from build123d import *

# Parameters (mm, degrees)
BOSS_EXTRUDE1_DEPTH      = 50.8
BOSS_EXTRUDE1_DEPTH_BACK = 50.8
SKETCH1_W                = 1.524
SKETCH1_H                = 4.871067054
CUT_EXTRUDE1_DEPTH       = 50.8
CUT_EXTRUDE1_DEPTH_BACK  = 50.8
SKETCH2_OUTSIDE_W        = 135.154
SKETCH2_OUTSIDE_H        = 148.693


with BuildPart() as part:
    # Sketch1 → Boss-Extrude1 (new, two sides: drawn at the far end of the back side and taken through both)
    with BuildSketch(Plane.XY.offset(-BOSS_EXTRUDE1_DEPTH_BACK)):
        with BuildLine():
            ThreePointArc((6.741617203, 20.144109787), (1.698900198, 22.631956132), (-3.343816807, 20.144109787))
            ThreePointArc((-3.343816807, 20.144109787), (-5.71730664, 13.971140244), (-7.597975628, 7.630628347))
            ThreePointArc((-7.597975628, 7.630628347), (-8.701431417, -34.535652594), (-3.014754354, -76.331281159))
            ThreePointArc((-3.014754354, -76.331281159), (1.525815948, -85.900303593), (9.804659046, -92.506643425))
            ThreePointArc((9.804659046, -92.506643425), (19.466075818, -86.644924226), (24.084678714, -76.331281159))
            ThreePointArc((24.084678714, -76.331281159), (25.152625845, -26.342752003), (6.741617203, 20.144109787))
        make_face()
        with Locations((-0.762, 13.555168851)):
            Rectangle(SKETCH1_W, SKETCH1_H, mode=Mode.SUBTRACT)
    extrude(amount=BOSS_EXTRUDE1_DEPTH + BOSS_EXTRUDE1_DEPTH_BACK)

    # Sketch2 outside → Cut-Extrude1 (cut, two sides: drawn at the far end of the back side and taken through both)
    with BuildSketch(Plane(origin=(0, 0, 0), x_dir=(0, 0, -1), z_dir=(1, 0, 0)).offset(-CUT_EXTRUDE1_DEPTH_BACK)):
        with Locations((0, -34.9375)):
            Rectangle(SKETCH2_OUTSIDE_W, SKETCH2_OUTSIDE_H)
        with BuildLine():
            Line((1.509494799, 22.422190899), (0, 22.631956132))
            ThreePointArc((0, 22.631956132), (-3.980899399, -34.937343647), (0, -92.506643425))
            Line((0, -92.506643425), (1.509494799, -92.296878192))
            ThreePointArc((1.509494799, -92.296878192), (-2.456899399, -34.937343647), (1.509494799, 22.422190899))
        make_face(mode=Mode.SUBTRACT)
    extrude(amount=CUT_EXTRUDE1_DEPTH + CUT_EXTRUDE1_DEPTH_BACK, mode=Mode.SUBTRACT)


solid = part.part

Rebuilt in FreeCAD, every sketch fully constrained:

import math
import FreeCAD as App
import Part
import Sketcher

V = App.Vector
Q = App.Units.Quantity


def add_polygon(sketch, points):
    """Adds a closed chain of lines whose ends are joined by coincident constraints."""
    first, n = sketch.GeometryCount, len(points)
    for a, b in zip(points, points[1:] + points[:1]):
        sketch.addGeometry(Part.LineSegment(App.Vector(*a, 0), App.Vector(*b, 0)), False)
    for i in range(n):
        sketch.addConstraint(Sketcher.Constraint("Coincident", first + i, 2, first + (i + 1) % n, 1))

doc = App.newDocument("Part")
body = doc.addObject("PartDesign::Body", "Body")

# Sketch on XY plane
sketch1 = doc.addObject("Sketcher::SketchObject", "Sketch")
body.addObject(sketch1)
sketch1.AttachmentSupport = (doc.XY_Plane, [""])
sketch1.MapMode = "FlatFace"
sketch1.addGeometry(Part.ArcOfCircle(Part.Circle(V(1.7, 16.3, 0), V(0, 0, 1), 6.4), math.radians(37), math.radians(143)), False)  # 0
sketch1.addGeometry(Part.ArcOfCircle(Part.Circle(V(73.8, -13.1, 0), V(0, 0, 1), 84), math.radians(156.71), math.radians(165.73)), False)  # 1
sketch1.addGeometry(Part.ArcOfCircle(Part.Circle(V(252.5, -20.3, 0), V(0, 0, 1), 261.6), math.radians(173.88), math.radians(192.37)), False)  # 2
sketch1.addGeometry(Part.ArcOfCircle(Part.Circle(V(20, -71.3, 0), V(0, 0, 1), 23.5), math.radians(-168), math.radians(-116)), False)  # 3
sketch1.addGeometry(Part.ArcOfCircle(Part.Circle(V(5.2, -74.1, 0), V(0, 0, 1), 19), math.radians(-76), math.radians(-7)), False)  # 4
sketch1.addGeometry(Part.ArcOfCircle(Part.Circle(V(-99.2, -48.7, 0), V(0, 0, 1), 126.3), math.radians(-13), math.radians(33)), False)  # 5
add_polygon(sketch1, [(0, 11.1), (-1.5, 11.1), (-1.5, 16), (0, 16)])  # lines 6-9
sketch1.addConstraint([
    Sketcher.Constraint("Coincident", 0, 2, 1, 1),
    Sketcher.Constraint("Coincident", 1, 2, 2, 1),
    Sketcher.Constraint("Tangent", 2, 2, 3, 1),
    Sketcher.Constraint("Coincident", 3, 2, 4, 1),
    Sketcher.Constraint("Coincident", 4, 2, 5, 1),
    Sketcher.Constraint("Coincident", 5, 2, 0, 1),
    Sketcher.Constraint("Horizontal", 6),
    Sketcher.Constraint("Vertical", 7),
    Sketcher.Constraint("Horizontal", 8),
    Sketcher.Constraint("Vertical", 9),
    Sketcher.Constraint("PointOnObject", 8, 2, -2),
    Sketcher.Constraint("Horizontal", 2, 2, 4, 2),
    Sketcher.Constraint("Horizontal", 0, 2, 5, 2),
    Sketcher.Constraint("DistanceX", 6, 2, 6, 1, Q("0.06 in")),
    Sketcher.Constraint("Radius", 2, 261.63965),
    Sketcher.Constraint("Radius", 3, 23.518819),
    Sketcher.Constraint("Radius", 0, 6.354567),
    Sketcher.Constraint("Radius", 1, 84.029173),
    Sketcher.Constraint("Radius", 4, 18.984222),
    Sketcher.Constraint("Radius", 5, 126.318476),
    Sketcher.Constraint("DistanceX", -1, 1, 0, 3, 1.6989),
    Sketcher.Constraint("DistanceX", 1, 2, 4, 3, 12.832299),
    Sketcher.Constraint("DistanceY", 4, 3, 1, 2, 81.711401),
    Sketcher.Constraint("DistanceY", 7, 1, 7, 2, 4.871067),
    Sketcher.Constraint("DistanceY", -1, 1, 0, 3, 16.277389),
    Sketcher.Constraint("DistanceY", 1, 3, -1, 1, 13.075659),
    Sketcher.Constraint("DistanceX", -1, 1, 2, 3, 252.54928),
    Sketcher.Constraint("DistanceY", 5, 3, -1, 1, 48.692352),
    Sketcher.Constraint("DistanceY", -1, 1, 0, 2, 20.14411),
    Sketcher.Constraint("DistanceY", -1, 1, 1, 2, 7.630628),
    Sketcher.Constraint("DistanceY", -1, 1, 6, 2, 11.119635),
])
pad1 = doc.addObject("PartDesign::Pad", "Pad")
body.addObject(pad1)
pad1.Profile = sketch1
pad1.Type = "TwoLengths"
pad1.Length = Q("2 in")
pad1.Length2 = Q("2 in")

# Sketch on YZ plane
sketch2 = doc.addObject("Sketcher::SketchObject", "Sketch001")
body.addObject(sketch2)
sketch2.AttachmentSupport = (doc.YZ_Plane, [""])
sketch2.MapMode = "FlatFace"
add_polygon(sketch2, [(39.4, 67.6), (-109.3, 67.6), (-109.3, -67.6), (39.4, -67.6)])  # lines 0-3
sketch2.addGeometry(Part.LineSegment(V(22.6, 0, 0), V(22.4, -1.5, 0)), False)  # 4
sketch2.addGeometry(Part.ArcOfCircle(Part.Circle(V(-34.9, -414.3, 0), V(0, 0, 1), 416.7), math.radians(82.09), math.radians(97.91)), False)  # 5
sketch2.addGeometry(Part.LineSegment(V(-92.3, -1.5, 0), V(-92.5, 0, 0)), False)  # 6
sketch2.addGeometry(Part.ArcOfCircle(Part.Circle(V(-34.9, -414.3, 0), V(0, 0, 1), 418.3), math.radians(82.09), math.radians(97.91)), False)  # 7
sketch2.addConstraint([
    Sketcher.Constraint("Coincident", 4, 2, 5, 1),
    Sketcher.Constraint("Coincident", 5, 2, 6, 1),
    Sketcher.Constraint("Coincident", 6, 2, 7, 2),
    Sketcher.Constraint("Coincident", 7, 1, 4, 1),
    Sketcher.Constraint("Horizontal", 0),
    Sketcher.Constraint("Vertical", 1),
    Sketcher.Constraint("Horizontal", 2),
    Sketcher.Constraint("Vertical", 3),
    Sketcher.Constraint("Coincident", 7, 3, 5, 3),
    Sketcher.Constraint("PointOnObject", 6, 2, -1),
    Sketcher.Constraint("PointOnObject", 7, 1, -1),
    Sketcher.Constraint("Horizontal", 4, 2, 5, 2),
    Sketcher.Constraint("Distance", 4, Q("0.06 in")),
    Sketcher.Constraint("DistanceX", 0, 2, 0, 1, 148.693),
    Sketcher.Constraint("DistanceY", 1, 2, 1, 1, 135.154),
    Sketcher.Constraint("Radius", 5, 416.732216),
    Sketcher.Constraint("DistanceX", 0, 2, -1, 1, 109.284),
    Sketcher.Constraint("DistanceY", -1, 1, 0, 2, 67.577),
    Sketcher.Constraint("DistanceX", 6, 2, 7, 1, 115.1386),
    Sketcher.Constraint("DistanceX", -1, 1, 4, 2, 22.422191),
    Sketcher.Constraint("DistanceY", 5, 3, 4, 2, 412.765822),
])
pocket1 = doc.addObject("PartDesign::Pocket", "Pocket")
body.addObject(pocket1)
pocket1.Profile = sketch2
pocket1.Type = "ThroughAll"
pocket1.Midplane = True

doc.recompute()
